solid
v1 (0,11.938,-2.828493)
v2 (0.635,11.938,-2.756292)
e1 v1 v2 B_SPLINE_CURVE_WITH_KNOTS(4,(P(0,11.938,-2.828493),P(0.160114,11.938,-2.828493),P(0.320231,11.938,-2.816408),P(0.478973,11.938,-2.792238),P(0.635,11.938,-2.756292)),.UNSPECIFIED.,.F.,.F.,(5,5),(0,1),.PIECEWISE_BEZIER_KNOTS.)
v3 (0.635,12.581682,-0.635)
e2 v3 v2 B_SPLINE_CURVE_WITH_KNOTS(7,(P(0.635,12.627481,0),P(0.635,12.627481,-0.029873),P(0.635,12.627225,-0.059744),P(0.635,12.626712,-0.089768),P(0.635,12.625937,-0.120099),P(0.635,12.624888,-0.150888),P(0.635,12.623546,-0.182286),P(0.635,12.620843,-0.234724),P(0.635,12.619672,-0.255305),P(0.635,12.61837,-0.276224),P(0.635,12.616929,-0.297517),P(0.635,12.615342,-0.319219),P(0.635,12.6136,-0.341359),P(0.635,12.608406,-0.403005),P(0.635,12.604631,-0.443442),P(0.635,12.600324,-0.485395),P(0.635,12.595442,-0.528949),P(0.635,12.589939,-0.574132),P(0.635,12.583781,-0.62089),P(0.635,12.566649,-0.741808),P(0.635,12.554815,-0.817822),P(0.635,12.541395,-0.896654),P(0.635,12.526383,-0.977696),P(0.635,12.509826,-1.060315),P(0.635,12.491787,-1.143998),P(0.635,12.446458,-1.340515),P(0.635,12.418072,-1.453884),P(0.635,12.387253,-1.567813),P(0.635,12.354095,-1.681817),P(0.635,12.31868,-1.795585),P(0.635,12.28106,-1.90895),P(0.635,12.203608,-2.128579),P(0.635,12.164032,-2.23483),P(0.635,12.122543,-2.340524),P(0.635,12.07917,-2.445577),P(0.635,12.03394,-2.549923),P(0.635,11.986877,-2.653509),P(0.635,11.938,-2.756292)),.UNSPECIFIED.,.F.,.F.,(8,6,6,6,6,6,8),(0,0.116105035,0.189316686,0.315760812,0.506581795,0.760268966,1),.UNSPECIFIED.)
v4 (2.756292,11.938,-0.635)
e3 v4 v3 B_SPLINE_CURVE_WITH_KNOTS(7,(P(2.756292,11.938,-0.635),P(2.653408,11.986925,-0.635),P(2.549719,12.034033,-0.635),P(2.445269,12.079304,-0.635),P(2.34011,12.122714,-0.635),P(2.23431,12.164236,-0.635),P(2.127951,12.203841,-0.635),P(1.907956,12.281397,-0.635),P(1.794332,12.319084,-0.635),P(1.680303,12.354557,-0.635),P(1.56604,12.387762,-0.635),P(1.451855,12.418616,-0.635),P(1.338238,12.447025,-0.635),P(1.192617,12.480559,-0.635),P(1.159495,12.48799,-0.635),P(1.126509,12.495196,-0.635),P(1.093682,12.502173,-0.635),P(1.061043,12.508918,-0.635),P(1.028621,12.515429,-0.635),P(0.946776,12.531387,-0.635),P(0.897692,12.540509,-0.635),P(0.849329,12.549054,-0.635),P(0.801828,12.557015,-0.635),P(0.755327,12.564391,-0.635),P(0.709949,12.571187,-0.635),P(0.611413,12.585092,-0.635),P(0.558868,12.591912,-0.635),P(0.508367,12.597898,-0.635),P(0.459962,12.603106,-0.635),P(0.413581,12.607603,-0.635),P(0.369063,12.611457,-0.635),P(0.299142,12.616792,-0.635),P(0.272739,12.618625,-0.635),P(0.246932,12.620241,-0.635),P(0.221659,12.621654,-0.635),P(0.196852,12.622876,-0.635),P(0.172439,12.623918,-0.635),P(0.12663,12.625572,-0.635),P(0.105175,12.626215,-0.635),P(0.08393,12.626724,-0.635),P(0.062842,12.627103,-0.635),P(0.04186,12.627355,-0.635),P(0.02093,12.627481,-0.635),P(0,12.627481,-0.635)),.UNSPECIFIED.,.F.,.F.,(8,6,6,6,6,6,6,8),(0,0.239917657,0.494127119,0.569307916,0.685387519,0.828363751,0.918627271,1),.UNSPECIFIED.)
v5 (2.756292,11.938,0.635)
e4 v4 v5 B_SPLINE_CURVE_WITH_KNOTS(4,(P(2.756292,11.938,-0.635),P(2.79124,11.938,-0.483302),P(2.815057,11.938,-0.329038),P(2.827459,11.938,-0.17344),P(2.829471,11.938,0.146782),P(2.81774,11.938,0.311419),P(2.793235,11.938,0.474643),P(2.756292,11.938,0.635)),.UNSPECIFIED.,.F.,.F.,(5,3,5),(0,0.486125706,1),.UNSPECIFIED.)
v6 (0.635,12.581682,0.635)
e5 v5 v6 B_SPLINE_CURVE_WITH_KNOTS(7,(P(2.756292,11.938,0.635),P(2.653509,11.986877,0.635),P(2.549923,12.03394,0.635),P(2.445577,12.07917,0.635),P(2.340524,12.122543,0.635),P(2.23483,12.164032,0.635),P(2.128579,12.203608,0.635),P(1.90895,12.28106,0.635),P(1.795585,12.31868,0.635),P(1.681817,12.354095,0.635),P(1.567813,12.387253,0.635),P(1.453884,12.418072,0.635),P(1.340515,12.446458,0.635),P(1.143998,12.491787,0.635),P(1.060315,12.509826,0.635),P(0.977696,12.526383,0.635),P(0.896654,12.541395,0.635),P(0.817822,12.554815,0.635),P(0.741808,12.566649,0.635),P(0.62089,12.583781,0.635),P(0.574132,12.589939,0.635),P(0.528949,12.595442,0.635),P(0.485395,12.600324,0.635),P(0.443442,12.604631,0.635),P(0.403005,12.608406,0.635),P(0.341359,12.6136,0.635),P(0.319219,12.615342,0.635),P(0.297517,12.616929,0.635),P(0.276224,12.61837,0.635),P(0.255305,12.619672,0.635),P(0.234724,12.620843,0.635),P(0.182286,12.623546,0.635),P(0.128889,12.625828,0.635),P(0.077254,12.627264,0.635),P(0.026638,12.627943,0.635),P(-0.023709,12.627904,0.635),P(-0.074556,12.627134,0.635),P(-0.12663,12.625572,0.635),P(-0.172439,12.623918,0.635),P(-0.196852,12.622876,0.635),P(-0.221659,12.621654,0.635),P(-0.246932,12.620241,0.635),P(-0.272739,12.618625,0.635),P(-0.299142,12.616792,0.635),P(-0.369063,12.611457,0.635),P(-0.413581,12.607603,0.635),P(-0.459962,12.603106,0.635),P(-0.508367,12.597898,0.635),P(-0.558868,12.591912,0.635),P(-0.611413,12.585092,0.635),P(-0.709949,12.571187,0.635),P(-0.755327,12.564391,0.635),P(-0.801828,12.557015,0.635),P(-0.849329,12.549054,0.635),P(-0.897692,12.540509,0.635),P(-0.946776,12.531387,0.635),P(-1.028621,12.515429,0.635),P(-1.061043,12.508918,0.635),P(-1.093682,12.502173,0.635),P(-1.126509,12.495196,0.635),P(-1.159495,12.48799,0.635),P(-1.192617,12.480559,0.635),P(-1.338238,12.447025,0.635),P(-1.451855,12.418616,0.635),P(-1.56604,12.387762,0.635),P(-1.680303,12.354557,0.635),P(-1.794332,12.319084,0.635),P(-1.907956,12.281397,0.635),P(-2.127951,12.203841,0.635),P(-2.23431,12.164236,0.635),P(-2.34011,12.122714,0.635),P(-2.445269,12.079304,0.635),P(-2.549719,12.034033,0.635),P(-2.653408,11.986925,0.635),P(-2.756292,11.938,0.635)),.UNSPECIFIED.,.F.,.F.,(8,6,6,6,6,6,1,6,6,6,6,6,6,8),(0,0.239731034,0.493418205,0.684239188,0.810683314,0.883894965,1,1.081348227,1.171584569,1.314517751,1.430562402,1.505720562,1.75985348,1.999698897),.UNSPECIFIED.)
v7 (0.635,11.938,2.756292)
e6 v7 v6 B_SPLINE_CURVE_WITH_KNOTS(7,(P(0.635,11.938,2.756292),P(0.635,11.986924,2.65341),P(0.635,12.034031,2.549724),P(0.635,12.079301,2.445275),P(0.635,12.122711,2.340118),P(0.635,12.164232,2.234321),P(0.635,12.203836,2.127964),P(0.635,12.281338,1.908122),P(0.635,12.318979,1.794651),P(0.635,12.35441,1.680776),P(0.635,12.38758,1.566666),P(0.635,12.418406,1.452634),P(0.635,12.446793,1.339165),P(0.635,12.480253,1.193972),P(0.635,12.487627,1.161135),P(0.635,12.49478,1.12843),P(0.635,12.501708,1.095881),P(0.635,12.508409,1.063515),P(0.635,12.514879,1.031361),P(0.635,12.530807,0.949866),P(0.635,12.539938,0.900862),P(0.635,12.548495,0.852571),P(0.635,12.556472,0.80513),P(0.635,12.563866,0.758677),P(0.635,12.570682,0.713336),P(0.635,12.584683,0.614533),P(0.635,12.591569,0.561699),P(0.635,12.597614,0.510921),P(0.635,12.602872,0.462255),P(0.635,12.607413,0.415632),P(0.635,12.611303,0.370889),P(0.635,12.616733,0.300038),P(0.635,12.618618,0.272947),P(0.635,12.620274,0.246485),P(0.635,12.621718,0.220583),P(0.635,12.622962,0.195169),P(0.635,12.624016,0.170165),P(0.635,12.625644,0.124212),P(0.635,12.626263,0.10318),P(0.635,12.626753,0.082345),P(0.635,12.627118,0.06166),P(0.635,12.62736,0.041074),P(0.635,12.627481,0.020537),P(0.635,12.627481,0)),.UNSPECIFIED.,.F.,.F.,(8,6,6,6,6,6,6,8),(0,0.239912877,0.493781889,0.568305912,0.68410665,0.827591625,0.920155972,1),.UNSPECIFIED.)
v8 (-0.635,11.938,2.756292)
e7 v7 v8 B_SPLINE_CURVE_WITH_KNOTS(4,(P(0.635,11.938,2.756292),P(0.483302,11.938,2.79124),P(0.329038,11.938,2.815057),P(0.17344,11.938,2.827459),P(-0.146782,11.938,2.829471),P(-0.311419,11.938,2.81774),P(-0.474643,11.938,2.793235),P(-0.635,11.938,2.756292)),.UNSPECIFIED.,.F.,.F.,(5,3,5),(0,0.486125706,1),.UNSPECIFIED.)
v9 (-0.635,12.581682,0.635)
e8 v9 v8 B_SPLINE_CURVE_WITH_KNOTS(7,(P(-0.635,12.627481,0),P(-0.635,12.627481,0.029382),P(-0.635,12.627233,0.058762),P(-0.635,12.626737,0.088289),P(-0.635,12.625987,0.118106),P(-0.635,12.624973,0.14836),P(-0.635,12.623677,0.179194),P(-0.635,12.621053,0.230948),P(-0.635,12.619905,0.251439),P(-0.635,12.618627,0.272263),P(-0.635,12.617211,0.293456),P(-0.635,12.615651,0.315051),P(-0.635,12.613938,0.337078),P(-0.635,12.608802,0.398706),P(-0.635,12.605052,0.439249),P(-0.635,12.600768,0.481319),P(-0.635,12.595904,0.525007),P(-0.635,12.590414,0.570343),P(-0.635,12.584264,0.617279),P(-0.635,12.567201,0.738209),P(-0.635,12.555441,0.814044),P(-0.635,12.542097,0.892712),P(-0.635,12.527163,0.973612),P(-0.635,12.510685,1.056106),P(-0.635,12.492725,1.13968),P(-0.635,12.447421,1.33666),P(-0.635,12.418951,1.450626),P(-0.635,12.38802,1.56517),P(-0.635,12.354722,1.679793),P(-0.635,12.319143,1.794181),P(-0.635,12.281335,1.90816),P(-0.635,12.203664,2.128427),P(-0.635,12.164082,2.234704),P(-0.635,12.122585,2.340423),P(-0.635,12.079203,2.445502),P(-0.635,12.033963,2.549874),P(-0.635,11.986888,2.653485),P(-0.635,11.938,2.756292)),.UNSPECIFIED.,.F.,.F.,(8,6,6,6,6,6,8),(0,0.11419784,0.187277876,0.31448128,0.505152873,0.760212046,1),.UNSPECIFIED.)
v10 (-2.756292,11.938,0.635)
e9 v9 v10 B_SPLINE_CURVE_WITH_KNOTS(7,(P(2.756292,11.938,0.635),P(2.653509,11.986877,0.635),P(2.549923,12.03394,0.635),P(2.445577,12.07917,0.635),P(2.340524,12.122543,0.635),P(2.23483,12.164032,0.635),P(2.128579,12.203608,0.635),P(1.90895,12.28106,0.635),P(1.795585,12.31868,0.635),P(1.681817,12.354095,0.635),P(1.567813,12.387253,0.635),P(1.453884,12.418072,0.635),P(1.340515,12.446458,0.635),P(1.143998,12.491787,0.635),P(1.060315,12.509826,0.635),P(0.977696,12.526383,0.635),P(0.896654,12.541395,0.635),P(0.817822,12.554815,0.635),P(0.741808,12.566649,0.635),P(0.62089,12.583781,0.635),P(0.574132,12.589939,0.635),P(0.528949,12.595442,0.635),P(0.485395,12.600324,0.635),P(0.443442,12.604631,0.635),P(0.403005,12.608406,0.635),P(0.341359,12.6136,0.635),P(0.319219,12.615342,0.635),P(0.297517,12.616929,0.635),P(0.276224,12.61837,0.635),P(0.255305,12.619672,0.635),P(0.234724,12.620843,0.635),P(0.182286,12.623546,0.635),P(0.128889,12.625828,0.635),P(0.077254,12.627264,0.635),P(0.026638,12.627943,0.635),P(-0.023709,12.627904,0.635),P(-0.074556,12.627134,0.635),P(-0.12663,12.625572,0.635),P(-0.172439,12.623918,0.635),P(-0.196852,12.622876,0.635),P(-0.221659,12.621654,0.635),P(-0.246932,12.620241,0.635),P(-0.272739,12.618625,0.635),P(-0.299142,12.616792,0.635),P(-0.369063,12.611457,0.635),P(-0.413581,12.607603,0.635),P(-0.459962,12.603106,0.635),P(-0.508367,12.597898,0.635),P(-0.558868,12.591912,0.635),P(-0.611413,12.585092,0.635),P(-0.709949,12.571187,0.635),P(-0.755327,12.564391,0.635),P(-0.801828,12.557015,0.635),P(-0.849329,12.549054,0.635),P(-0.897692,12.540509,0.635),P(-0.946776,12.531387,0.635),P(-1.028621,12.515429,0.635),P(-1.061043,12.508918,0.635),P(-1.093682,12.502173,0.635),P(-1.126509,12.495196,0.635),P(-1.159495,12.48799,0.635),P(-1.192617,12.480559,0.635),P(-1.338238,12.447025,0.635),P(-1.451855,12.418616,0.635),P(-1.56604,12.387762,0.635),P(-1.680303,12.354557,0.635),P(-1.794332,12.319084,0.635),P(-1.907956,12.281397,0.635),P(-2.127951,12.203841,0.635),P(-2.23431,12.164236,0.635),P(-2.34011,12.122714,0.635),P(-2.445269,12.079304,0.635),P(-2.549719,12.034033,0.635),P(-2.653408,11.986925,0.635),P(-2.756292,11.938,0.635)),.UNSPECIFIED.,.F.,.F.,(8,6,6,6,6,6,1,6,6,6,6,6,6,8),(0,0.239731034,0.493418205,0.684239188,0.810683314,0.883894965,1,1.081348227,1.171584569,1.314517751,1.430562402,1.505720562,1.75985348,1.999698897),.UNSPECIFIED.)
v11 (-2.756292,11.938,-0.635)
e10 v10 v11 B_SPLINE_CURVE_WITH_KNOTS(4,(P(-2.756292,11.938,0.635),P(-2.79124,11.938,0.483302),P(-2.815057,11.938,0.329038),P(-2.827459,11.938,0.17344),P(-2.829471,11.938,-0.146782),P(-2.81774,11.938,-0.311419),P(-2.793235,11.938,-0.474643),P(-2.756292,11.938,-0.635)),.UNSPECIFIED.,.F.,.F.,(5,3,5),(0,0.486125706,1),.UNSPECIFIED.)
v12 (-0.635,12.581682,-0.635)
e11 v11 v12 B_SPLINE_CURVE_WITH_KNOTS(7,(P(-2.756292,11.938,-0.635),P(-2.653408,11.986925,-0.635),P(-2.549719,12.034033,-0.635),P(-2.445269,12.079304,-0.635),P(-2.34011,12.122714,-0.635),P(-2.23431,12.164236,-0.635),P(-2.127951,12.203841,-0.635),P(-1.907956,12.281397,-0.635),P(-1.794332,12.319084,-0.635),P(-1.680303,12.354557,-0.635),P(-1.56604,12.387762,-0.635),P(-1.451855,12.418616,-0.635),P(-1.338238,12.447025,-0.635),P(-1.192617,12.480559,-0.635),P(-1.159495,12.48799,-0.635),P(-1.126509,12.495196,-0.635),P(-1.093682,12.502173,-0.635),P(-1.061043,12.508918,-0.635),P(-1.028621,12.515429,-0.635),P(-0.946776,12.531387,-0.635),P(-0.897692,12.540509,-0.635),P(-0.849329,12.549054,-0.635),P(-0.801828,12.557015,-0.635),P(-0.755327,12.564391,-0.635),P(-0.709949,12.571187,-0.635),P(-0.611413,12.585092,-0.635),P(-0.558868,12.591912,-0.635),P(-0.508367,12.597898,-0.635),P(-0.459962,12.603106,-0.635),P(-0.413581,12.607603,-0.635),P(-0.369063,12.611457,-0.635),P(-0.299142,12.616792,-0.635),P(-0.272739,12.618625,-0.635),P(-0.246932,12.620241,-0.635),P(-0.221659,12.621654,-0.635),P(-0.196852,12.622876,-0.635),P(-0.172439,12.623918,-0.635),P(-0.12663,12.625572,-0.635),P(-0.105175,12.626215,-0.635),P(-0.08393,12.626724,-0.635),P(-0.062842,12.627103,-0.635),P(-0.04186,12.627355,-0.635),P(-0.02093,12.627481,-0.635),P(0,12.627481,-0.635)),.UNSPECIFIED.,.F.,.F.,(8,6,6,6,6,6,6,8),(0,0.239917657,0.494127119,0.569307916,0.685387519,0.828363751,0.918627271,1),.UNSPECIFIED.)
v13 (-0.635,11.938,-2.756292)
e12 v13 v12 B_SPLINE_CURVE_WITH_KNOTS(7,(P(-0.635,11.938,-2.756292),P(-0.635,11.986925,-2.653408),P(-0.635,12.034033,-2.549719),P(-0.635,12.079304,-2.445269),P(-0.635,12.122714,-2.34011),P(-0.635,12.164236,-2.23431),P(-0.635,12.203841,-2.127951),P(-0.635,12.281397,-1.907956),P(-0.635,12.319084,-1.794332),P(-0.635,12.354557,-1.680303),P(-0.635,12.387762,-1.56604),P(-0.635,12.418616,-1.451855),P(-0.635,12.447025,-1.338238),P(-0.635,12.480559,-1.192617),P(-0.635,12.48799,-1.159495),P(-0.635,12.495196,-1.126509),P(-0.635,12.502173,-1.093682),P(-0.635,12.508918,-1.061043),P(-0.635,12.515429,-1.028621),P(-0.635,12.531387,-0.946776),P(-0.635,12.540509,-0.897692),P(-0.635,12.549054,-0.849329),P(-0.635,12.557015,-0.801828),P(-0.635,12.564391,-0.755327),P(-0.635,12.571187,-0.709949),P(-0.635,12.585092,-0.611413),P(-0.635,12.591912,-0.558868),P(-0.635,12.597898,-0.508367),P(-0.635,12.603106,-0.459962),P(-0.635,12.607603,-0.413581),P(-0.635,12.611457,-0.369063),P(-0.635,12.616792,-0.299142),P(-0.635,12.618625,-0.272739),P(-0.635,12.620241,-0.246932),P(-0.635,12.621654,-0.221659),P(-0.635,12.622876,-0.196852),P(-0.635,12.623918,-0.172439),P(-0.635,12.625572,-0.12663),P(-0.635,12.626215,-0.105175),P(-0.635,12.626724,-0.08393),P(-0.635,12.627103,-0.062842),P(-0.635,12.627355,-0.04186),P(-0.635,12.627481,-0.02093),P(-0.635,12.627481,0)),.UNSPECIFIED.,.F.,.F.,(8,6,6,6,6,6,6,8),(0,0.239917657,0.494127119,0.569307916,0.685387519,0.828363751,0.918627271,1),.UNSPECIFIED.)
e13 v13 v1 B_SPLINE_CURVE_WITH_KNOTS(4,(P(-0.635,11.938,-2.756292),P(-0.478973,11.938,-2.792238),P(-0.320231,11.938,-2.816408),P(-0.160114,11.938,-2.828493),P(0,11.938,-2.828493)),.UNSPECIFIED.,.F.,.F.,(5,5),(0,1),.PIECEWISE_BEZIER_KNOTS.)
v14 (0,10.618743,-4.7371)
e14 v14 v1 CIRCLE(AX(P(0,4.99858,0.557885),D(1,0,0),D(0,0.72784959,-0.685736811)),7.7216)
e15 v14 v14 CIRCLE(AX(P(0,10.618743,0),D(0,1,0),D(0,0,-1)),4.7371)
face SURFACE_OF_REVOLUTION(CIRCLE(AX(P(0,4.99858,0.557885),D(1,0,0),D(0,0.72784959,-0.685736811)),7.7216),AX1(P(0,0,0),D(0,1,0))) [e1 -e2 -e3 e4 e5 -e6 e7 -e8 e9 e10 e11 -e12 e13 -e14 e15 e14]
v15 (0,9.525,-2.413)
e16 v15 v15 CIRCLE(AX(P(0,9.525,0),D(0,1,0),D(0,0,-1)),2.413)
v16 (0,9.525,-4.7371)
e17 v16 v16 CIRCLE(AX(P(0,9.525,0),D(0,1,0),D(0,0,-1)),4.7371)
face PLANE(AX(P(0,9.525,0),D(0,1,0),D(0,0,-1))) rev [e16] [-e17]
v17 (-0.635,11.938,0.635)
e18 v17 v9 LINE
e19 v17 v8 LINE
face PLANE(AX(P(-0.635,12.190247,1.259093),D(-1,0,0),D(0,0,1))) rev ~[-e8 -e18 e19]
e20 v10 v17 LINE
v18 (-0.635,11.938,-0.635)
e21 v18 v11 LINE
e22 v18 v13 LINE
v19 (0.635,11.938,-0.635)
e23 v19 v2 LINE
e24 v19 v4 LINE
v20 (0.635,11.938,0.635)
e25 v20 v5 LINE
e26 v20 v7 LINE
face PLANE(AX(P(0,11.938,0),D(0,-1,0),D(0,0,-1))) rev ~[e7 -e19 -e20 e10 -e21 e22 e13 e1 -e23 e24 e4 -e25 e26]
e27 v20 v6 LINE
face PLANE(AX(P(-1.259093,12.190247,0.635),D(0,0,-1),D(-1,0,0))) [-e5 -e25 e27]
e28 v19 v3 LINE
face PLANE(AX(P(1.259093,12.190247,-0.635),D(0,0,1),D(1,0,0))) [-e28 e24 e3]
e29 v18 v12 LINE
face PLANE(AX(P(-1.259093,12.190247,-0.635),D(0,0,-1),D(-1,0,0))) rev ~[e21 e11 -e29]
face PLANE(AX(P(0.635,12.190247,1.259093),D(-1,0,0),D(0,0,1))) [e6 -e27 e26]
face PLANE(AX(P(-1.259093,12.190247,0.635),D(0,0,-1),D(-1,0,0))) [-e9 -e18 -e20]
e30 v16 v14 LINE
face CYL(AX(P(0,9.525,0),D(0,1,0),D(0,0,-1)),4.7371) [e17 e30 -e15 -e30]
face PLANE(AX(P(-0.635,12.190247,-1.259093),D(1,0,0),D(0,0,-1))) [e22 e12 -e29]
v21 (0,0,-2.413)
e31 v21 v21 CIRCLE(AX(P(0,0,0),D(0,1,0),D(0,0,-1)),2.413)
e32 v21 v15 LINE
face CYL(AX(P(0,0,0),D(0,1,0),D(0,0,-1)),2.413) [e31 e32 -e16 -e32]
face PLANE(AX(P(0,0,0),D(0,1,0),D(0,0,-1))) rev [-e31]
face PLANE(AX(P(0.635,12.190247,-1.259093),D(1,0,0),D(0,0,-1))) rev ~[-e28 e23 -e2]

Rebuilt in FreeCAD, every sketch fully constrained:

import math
import FreeCAD as App
import Part
import Sketcher
from FreeCAD import Vector
Q = App.Units.Quantity

doc = App.newDocument("Part")
body = doc.addObject("PartDesign::Body", "Body")

# Sketch on XY plane
sketch1 = body.newObject("Sketcher::SketchObject", "Sketch")
sketch1.AttachmentSupport = (doc.getObject("XY_Plane"), [""])
sketch1.MapMode = "FlatFace"
sketch1.addGeometry(Part.LineSegment(Vector(0, 0, 0), Vector(2.413, 0, 0)), False)
sketch1.addGeometry(Part.LineSegment(Vector(2.413, 0, 0), Vector(2.413, 9.525, 0)), False)
sketch1.addGeometry(Part.LineSegment(Vector(2.413, 9.525, 0), Vector(4.7371, 9.525, 0)), False)
sketch1.addGeometry(Part.LineSegment(Vector(4.7371, 9.525, 0), Vector(4.7371, 10.618743, 0)), False)
sketch1.addGeometry(Part.ArcOfCircle(Part.Circle(Vector(-0.557885, 4.99858, 0), Vector(0, 0, 1), 7.7216), math.radians(46.706419), math.radians(85.856772)), False)
sketch1.addGeometry(Part.LineSegment(Vector(0, 12.7, 0), Vector(0, 0, 0)), False)
sketch1.addConstraint(Sketcher.Constraint("Coincident", 0, 2, 1, 1))
sketch1.addConstraint(Sketcher.Constraint("Coincident", 1, 2, 2, 1))
sketch1.addConstraint(Sketcher.Constraint("Coincident", 2, 2, 3, 1))
sketch1.addConstraint(Sketcher.Constraint("Coincident", 3, 2, 4, 1))
sketch1.addConstraint(Sketcher.Constraint("Coincident", 4, 2, 5, 1))
sketch1.addConstraint(Sketcher.Constraint("Coincident", 5, 2, 0, 1))
sketch1.addConstraint(Sketcher.Constraint("Horizontal", 0))
sketch1.addConstraint(Sketcher.Constraint("Vertical", 1))
sketch1.addConstraint(Sketcher.Constraint("Horizontal", 2))
sketch1.addConstraint(Sketcher.Constraint("Vertical", 3))
sketch1.addConstraint(Sketcher.Constraint("Vertical", 5))
sketch1.addConstraint(Sketcher.Constraint("Coincident", 5, 2, -1, 1))
sketch1.addConstraint(Sketcher.Constraint("DistanceY", 5, 2, 5, 1, Q("0.5 in")))
sketch1.addConstraint(Sketcher.Constraint("Radius", 4, Q("0.304 in")))
sketch1.addConstraint(Sketcher.Constraint("DistanceX", 0, 1, 0, 2, Q("0.095 in")))
sketch1.addConstraint(Sketcher.Constraint("DistanceY", 1, 1, 1, 2, Q("0.375 in")))
sketch1.addConstraint(Sketcher.Constraint("DistanceX", 2, 1, 2, 2, Q("0.0915 in")))
sketch1.addConstraint(Sketcher.Constraint("DistanceY", 3, 1, 3, 2, Q("1.093743 mm")))
revolution = body.newObject("PartDesign::Revolution", "Revolution")
revolution.Profile = sketch1
revolution.ReferenceAxis = (sketch1, ["V_Axis"])
revolution.Angle = 360

# Sketch on XY plane
sketch2 = body.newObject("Sketcher::SketchObject", "Sketch001")
sketch2.AttachmentSupport = (doc.getObject("XY_Plane"), [""])
sketch2.MapMode = "FlatFace"
sketch2.addGeometry(Part.LineSegment(Vector(0, 11.938, 0), Vector(2.828493, 11.938, 0)), False)
sketch2.addGeometry(Part.ArcOfCircle(Part.Circle(Vector(-0.557885, 4.99858, 0), Vector(0, 0, 1), 7.7216), math.radians(63.988017), math.radians(85.856772)), False)
sketch2.addGeometry(Part.LineSegment(Vector(0, 12.7, 0), Vector(0, 11.938, 0)), False)
sketch2.addConstraint(Sketcher.Constraint("Coincident", 0, 2, 1, 1))
sketch2.addConstraint(Sketcher.Constraint("Coincident", 1, 2, 2, 1))
sketch2.addConstraint(Sketcher.Constraint("Coincident", 2, 2, 0, 1))
sketch2.addConstraint(Sketcher.Constraint("Horizontal", 0))
sketch2.addConstraint(Sketcher.Constraint("Vertical", 2))
sketch2.addConstraint(Sketcher.Constraint("PointOnObject", 1, 2, -2))
sketch2.addConstraint(Sketcher.Constraint("Radius", 1, Q("0.304 in")))
sketch2.addConstraint(Sketcher.Constraint("DistanceY", 2, 2, 2, 1, Q("0.03 in")))
sketch2.addConstraint(Sketcher.Constraint("DistanceY", -1, 1, 1, 2, Q("0.5 in")))
sketch2.addConstraint(Sketcher.Constraint("DistanceX", 0, 1, 0, 2, Q("2.828493 mm")))
pocket1 = body.newObject("PartDesign::Pocket", "Pocket")
pocket1.Profile = sketch2
pocket1.Length = Q("0.05 in")
pocket1.Midplane = True
doc.recompute()

polarpattern = body.newObject("PartDesign::PolarPattern", "PolarPattern")
polarpattern.Originals = [pocket1]
polarpattern.Axis = (doc.getObject("Y_Axis"), [""])
polarpattern.Angle = 360
polarpattern.Occurrences = 4
body.Tip = polarpattern

doc.recompute()
